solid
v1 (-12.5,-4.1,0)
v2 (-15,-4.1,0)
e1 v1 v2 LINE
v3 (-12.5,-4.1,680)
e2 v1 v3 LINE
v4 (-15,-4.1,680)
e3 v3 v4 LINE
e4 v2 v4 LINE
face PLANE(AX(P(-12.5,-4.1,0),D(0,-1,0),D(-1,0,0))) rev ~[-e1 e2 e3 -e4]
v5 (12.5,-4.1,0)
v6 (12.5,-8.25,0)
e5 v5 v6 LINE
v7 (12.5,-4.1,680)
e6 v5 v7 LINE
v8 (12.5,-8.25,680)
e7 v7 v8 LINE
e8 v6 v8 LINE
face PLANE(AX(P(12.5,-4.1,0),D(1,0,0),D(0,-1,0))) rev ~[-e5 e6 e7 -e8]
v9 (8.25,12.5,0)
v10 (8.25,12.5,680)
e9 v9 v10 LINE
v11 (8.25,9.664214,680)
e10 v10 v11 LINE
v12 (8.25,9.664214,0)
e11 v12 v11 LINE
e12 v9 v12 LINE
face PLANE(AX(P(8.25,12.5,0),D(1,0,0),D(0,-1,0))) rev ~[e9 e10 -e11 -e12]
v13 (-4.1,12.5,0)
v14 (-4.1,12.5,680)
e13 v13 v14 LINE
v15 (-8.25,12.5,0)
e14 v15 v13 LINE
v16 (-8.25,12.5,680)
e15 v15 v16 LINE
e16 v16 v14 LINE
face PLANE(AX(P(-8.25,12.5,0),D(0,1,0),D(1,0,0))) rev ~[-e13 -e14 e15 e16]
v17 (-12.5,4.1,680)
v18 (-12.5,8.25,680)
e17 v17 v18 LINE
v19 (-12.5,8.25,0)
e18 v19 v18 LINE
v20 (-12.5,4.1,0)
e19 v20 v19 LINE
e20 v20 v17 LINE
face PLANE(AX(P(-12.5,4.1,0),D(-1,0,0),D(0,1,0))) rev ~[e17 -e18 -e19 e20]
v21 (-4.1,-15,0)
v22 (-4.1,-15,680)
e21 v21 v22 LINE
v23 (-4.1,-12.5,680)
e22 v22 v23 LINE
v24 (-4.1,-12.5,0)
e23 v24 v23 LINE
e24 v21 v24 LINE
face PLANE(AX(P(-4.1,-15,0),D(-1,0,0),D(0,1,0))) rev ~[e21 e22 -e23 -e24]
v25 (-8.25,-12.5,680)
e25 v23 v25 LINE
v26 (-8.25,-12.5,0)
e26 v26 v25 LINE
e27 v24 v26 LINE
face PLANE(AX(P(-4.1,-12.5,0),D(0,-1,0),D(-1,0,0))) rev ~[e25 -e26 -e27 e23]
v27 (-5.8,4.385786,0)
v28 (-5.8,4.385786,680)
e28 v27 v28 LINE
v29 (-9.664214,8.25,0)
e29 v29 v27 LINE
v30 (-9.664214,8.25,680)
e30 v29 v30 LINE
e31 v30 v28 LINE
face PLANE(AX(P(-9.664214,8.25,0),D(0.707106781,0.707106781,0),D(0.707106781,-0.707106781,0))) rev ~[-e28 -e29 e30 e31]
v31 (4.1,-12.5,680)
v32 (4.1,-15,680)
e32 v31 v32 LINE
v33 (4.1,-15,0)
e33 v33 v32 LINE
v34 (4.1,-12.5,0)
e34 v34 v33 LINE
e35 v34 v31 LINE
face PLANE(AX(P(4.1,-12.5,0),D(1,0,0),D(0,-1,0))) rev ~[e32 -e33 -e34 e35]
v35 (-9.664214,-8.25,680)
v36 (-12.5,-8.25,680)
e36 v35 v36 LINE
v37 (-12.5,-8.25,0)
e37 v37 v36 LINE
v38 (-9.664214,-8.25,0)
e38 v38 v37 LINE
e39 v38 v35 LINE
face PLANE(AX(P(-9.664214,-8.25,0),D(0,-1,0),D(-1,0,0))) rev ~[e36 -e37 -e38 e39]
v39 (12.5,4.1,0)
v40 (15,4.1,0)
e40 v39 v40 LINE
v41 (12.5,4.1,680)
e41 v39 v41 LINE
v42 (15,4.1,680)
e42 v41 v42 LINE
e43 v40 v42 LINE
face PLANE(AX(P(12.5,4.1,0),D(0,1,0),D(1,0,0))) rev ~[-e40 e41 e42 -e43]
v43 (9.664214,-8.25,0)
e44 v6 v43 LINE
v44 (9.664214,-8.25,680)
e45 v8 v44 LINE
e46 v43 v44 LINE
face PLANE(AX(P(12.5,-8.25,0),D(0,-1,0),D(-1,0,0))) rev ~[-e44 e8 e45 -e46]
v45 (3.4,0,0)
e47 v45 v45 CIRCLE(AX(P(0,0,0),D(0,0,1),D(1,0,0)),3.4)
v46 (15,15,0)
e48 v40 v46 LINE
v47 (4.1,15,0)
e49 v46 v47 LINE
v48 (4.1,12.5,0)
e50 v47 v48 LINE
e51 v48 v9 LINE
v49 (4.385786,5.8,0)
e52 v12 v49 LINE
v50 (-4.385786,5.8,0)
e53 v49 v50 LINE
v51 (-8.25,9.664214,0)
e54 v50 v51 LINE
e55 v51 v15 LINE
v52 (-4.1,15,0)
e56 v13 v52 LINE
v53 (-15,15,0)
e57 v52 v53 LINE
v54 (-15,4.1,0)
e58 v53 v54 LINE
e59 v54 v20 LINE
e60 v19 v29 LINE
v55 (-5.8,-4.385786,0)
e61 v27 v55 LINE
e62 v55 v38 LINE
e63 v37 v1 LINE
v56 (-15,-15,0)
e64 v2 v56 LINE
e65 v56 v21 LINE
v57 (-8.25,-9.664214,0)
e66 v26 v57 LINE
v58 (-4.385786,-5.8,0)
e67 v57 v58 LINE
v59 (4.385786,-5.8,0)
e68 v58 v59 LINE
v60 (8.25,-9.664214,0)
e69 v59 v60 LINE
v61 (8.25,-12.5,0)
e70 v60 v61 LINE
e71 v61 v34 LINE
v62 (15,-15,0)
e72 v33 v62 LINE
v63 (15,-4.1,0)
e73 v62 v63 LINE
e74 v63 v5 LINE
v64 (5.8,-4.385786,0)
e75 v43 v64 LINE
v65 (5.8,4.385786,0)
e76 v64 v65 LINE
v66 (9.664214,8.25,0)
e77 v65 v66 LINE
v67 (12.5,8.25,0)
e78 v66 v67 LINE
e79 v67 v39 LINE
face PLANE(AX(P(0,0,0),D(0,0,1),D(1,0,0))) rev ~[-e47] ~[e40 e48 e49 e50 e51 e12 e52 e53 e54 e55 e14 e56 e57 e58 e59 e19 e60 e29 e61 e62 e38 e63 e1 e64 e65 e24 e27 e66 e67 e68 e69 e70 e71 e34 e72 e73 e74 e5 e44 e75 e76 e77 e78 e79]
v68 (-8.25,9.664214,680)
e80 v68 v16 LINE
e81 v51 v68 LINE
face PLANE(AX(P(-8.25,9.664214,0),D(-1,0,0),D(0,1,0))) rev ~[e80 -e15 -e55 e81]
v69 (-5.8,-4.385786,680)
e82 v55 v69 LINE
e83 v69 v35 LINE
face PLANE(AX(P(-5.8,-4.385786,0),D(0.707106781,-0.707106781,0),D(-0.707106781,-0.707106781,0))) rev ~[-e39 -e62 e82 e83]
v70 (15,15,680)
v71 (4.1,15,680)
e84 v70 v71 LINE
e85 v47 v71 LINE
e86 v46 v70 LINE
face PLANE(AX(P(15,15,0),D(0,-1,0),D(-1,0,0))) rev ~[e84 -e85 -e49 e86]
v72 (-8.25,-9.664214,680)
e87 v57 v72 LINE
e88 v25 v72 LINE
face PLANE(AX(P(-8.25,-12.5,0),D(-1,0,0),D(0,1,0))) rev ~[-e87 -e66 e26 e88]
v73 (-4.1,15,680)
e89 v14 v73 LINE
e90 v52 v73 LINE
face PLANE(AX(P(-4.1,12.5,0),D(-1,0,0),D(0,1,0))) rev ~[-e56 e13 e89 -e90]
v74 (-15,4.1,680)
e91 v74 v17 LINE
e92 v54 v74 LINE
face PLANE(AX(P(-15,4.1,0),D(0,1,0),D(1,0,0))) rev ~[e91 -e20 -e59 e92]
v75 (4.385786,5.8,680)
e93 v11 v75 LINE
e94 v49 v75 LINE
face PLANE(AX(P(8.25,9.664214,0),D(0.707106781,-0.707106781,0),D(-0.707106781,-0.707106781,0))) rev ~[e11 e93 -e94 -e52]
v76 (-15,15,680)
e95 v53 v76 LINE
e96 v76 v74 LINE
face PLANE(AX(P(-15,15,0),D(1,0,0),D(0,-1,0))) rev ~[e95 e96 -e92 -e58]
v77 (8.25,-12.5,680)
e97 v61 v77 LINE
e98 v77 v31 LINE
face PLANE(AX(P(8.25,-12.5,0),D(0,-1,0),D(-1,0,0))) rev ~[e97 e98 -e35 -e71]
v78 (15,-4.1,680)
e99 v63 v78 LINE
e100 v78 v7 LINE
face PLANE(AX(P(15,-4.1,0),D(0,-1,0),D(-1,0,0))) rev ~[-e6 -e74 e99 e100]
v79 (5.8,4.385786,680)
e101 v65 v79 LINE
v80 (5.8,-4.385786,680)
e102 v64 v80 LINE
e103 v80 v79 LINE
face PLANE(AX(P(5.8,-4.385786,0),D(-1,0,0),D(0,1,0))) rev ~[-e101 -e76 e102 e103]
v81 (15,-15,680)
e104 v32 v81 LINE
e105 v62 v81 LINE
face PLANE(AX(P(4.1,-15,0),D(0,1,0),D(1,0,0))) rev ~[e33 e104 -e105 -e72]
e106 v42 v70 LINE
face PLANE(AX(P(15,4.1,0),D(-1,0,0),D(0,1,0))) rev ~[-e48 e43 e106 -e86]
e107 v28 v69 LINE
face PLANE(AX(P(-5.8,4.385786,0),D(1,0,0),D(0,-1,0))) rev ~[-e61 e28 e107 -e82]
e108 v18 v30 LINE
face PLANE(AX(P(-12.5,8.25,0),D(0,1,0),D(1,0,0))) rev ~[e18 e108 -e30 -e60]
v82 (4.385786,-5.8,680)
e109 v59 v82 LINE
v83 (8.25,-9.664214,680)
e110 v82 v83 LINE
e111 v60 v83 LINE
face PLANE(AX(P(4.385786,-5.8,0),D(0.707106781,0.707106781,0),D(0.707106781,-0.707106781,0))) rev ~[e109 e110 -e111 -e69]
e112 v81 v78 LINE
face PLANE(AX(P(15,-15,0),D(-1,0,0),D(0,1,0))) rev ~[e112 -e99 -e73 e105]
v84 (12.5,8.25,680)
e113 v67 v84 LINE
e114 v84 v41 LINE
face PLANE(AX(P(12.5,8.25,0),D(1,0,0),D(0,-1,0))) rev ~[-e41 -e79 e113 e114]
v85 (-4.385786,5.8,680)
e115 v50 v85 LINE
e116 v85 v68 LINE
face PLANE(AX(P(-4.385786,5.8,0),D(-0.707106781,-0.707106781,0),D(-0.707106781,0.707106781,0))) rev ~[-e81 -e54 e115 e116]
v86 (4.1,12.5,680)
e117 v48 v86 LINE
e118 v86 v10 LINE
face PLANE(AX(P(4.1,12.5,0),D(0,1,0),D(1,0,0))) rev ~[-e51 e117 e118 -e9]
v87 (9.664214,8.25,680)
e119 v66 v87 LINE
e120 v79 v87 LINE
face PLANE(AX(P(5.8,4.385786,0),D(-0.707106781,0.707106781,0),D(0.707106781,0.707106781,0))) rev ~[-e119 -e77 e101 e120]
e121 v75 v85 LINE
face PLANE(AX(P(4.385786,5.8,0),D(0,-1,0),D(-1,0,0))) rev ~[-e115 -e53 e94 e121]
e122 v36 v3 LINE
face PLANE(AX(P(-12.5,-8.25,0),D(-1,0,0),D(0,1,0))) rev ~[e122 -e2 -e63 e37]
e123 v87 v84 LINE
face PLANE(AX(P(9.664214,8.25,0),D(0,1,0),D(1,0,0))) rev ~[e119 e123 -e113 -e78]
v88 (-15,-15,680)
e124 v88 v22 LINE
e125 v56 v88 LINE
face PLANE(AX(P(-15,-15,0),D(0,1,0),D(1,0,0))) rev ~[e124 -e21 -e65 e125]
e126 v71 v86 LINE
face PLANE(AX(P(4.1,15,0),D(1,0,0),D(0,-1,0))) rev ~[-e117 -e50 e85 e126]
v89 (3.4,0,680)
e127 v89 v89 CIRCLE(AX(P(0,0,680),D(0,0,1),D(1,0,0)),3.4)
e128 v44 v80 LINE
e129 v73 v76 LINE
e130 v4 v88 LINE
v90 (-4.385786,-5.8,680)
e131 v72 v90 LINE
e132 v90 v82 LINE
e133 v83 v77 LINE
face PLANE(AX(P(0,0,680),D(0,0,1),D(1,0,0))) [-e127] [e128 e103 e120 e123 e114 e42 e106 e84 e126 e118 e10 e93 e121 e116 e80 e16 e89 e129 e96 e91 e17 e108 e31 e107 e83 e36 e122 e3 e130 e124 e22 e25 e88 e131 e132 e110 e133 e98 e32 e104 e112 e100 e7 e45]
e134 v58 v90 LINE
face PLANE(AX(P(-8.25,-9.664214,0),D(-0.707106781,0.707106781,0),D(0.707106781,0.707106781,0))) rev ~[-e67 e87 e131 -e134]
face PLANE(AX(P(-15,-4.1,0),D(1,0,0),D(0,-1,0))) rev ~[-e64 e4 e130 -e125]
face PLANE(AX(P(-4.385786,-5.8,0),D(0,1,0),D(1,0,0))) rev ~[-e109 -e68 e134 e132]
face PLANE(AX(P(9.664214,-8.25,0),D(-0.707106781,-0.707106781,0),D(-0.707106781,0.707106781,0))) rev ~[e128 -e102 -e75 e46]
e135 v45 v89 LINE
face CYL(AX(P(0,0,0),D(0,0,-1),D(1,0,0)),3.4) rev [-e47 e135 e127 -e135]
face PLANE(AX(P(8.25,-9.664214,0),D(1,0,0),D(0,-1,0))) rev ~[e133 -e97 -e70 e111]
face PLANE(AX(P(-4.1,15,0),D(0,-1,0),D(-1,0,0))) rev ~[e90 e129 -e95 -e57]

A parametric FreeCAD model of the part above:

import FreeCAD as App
import Part
import Sketcher
Q = App.Units.Quantity


def add_polygon(sketch, points):
    """Adds a closed chain of lines whose ends are joined by coincident constraints."""
    first, n = sketch.GeometryCount, len(points)
    for a, b in zip(points, points[1:] + points[:1]):
        sketch.addGeometry(Part.LineSegment(App.Vector(*a, 0), App.Vector(*b, 0)), False)
    for i in range(n):
        sketch.addConstraint(Sketcher.Constraint("Coincident", first + i, 2, first + (i + 1) % n, 1))

doc = App.newDocument("Part")
body = doc.addObject("PartDesign::Body", "Body")

sketch1 = body.newObject("Sketcher::SketchObject", "Sketch")
sketch1.AttachmentSupport = (doc.getObject("XY_Plane"), [""])
sketch1.MapMode = "FlatFace"
add_polygon(sketch1, [(-4.1, 12.5), (-4.1, 15), (-15, 15), (-15, 4.1), (-12.5, 4.1), (-12.5, 8.2), (-9.7, 8.2), (-5.8, 4.4), (-5.8, -4.4), (-9.7, -8.2), (-12.5, -8.2), (-12.5, -4.1), (-15, -4.1), (-15, -15), (-4.1, -15), (-4.1, -12.5), (-8.2, -12.5), (-8.2, -9.7), (-4.4, -5.8), (4.4, -5.8), (8.2, -9.7), (8.2, -12.5), (4.1, -12.5), (4.1, -15), (15, -15), (15, -4.1), (12.5, -4.1), (12.5, -8.2), (9.7, -8.2), (5.8, -4.4), (5.8, 4.4), (9.7, 8.2), (12.5, 8.2), (12.5, 4.1), (15, 4.1), (15, 15), (4.1, 15), (4.1, 12.5), (8.2, 12.5), (8.2, 9.7), (4.4, 5.8), (-4.4, 5.8), (-8.2, 9.7), (-8.2, 12.5)])
sketch1.addGeometry(Part.Circle(App.Vector(0, 0, 0), App.Vector(0, 0, 1), 3.4), False)
sketch1.addConstraint(Sketcher.Constraint("Vertical", 0))
sketch1.addConstraint(Sketcher.Constraint("Horizontal", 1))
sketch1.addConstraint(Sketcher.Constraint("Vertical", 2))
sketch1.addConstraint(Sketcher.Constraint("Horizontal", 3))
sketch1.addConstraint(Sketcher.Constraint("Vertical", 4))
sketch1.addConstraint(Sketcher.Constraint("Horizontal", 5))
sketch1.addConstraint(Sketcher.Constraint("Vertical", 7))
sketch1.addConstraint(Sketcher.Constraint("Horizontal", 9))
sketch1.addConstraint(Sketcher.Constraint("Vertical", 10))
sketch1.addConstraint(Sketcher.Constraint("Horizontal", 11))
sketch1.addConstraint(Sketcher.Constraint("Vertical", 12))
sketch1.addConstraint(Sketcher.Constraint("Horizontal", 13))
sketch1.addConstraint(Sketcher.Constraint("Vertical", 14))
sketch1.addConstraint(Sketcher.Constraint("Horizontal", 15))
sketch1.addConstraint(Sketcher.Constraint("Vertical", 16))
sketch1.addConstraint(Sketcher.Constraint("Horizontal", 18))
sketch1.addConstraint(Sketcher.Constraint("Vertical", 20))
sketch1.addConstraint(Sketcher.Constraint("Horizontal", 21))
sketch1.addConstraint(Sketcher.Constraint("Vertical", 22))
sketch1.addConstraint(Sketcher.Constraint("Horizontal", 23))
sketch1.addConstraint(Sketcher.Constraint("Vertical", 24))
sketch1.addConstraint(Sketcher.Constraint("Horizontal", 25))
sketch1.addConstraint(Sketcher.Constraint("Vertical", 26))
sketch1.addConstraint(Sketcher.Constraint("Horizontal", 27))
sketch1.addConstraint(Sketcher.Constraint("Vertical", 29))
sketch1.addConstraint(Sketcher.Constraint("Horizontal", 31))
sketch1.addConstraint(Sketcher.Constraint("Vertical", 32))
sketch1.addConstraint(Sketcher.Constraint("Horizontal", 33))
sketch1.addConstraint(Sketcher.Constraint("Vertical", 34))
sketch1.addConstraint(Sketcher.Constraint("Horizontal", 35))
sketch1.addConstraint(Sketcher.Constraint("Vertical", 36))
sketch1.addConstraint(Sketcher.Constraint("Horizontal", 37))
sketch1.addConstraint(Sketcher.Constraint("Vertical", 38))
sketch1.addConstraint(Sketcher.Constraint("Horizontal", 40))
sketch1.addConstraint(Sketcher.Constraint("Vertical", 42))
sketch1.addConstraint(Sketcher.Constraint("Horizontal", 43))
sketch1.addConstraint(Sketcher.Constraint("Coincident", 44, 3, -1, 1))
sketch1.addConstraint(Sketcher.Constraint("Symmetric", 0, 2, 22, 2, -1, 1))
sketch1.addConstraint(Sketcher.Constraint("Symmetric", 2, 2, 24, 2, -1, 1))
sketch1.addConstraint(Sketcher.Constraint("Symmetric", 4, 2, 26, 2, -1, 1))
sketch1.addConstraint(Sketcher.Constraint("Symmetric", 6, 2, 28, 2, -1, 1))
sketch1.addConstraint(Sketcher.Constraint("Symmetric", 8, 2, 30, 2, -1, 1))
sketch1.addConstraint(Sketcher.Constraint("Symmetric", 10, 2, 32, 2, -1, 1))
sketch1.addConstraint(Sketcher.Constraint("Symmetric", 12, 2, 34, 2, -1, 1))
sketch1.addConstraint(Sketcher.Constraint("Symmetric", 14, 2, 36, 2, -1, 1))
sketch1.addConstraint(Sketcher.Constraint("Symmetric", 16, 2, 38, 2, -1, 1))
sketch1.addConstraint(Sketcher.Constraint("Symmetric", 17, 2, 39, 2, -1, 1))
sketch1.addConstraint(Sketcher.Constraint("Symmetric", 19, 2, 41, 2, -1, 1))
sketch1.addConstraint(Sketcher.Constraint("Symmetric", 16, 2, 19, 2, -2))
sketch1.addConstraint(Sketcher.Constraint("Symmetric", 14, 2, 21, 2, -2))
sketch1.addConstraint(Sketcher.Constraint("Symmetric", 12, 2, 23, 2, -2))
sketch1.addConstraint(Sketcher.Constraint("Symmetric", 10, 2, 25, 2, -2))
sketch1.addConstraint(Sketcher.Constraint("Symmetric", 8, 2, 27, 2, -2))
sketch1.addConstraint(Sketcher.Constraint("Perpendicular", 6, 8))
sketch1.addConstraint(Sketcher.Constraint("Parallel", 8, 17))
sketch1.addConstraint(Sketcher.Constraint("Perpendicular", 17, 19))
sketch1.addConstraint(Sketcher.Constraint("Parallel", 19, 28))
sketch1.addConstraint(Sketcher.Constraint("Perpendicular", 28, 30))
sketch1.addConstraint(Sketcher.Constraint("Perpendicular", 39, 41))
sketch1.addConstraint(Sketcher.Constraint("Horizontal", 7, 2, 28, 2))
sketch1.addConstraint(Sketcher.Constraint("Horizontal", 37, 2, 42, 2))
sketch1.addConstraint(Sketcher.Constraint("Equal", 33, 0))
sketch1.addConstraint(Sketcher.Constraint("Equal", 35, 2))
sketch1.addConstraint(Sketcher.Constraint("Equal", 43, 4))
sketch1.addConstraint(Sketcher.Constraint("Equal", 40, 7))
sketch1.addConstraint(Sketcher.Constraint("Equal", 31, 16))
sketch1.addConstraint(Sketcher.Constraint("Equal", 8, 17))
sketch1.addConstraint(Sketcher.Constraint("Diameter", 44, Q("6.8 mm")))
sketch1.addConstraint(Sketcher.Constraint("DistanceX", 1, 2, 1, 1, Q("10.9 mm")))
sketch1.addConstraint(Sketcher.Constraint("DistanceX", 3, 1, 3, 2, Q("2.5 mm")))
sketch1.addConstraint(Sketcher.Constraint("DistanceY", -1, 1, 0, 2, Q("15 mm")))
sketch1.addConstraint(Sketcher.Constraint("DistanceX", 15, 2, 15, 1, Q("4.15 mm")))
sketch1.addConstraint(Sketcher.Constraint("DistanceX", 6, 2, -1, 1, Q("5.8 mm")))
sketch1.addConstraint(Sketcher.Constraint("DistanceX", 5, 1, 5, 2, Q("2.835786 mm")))
pad1 = body.newObject("PartDesign::Pad", "Pad")
pad1.Profile = sketch1
pad1.Length = 680

doc.recompute()
